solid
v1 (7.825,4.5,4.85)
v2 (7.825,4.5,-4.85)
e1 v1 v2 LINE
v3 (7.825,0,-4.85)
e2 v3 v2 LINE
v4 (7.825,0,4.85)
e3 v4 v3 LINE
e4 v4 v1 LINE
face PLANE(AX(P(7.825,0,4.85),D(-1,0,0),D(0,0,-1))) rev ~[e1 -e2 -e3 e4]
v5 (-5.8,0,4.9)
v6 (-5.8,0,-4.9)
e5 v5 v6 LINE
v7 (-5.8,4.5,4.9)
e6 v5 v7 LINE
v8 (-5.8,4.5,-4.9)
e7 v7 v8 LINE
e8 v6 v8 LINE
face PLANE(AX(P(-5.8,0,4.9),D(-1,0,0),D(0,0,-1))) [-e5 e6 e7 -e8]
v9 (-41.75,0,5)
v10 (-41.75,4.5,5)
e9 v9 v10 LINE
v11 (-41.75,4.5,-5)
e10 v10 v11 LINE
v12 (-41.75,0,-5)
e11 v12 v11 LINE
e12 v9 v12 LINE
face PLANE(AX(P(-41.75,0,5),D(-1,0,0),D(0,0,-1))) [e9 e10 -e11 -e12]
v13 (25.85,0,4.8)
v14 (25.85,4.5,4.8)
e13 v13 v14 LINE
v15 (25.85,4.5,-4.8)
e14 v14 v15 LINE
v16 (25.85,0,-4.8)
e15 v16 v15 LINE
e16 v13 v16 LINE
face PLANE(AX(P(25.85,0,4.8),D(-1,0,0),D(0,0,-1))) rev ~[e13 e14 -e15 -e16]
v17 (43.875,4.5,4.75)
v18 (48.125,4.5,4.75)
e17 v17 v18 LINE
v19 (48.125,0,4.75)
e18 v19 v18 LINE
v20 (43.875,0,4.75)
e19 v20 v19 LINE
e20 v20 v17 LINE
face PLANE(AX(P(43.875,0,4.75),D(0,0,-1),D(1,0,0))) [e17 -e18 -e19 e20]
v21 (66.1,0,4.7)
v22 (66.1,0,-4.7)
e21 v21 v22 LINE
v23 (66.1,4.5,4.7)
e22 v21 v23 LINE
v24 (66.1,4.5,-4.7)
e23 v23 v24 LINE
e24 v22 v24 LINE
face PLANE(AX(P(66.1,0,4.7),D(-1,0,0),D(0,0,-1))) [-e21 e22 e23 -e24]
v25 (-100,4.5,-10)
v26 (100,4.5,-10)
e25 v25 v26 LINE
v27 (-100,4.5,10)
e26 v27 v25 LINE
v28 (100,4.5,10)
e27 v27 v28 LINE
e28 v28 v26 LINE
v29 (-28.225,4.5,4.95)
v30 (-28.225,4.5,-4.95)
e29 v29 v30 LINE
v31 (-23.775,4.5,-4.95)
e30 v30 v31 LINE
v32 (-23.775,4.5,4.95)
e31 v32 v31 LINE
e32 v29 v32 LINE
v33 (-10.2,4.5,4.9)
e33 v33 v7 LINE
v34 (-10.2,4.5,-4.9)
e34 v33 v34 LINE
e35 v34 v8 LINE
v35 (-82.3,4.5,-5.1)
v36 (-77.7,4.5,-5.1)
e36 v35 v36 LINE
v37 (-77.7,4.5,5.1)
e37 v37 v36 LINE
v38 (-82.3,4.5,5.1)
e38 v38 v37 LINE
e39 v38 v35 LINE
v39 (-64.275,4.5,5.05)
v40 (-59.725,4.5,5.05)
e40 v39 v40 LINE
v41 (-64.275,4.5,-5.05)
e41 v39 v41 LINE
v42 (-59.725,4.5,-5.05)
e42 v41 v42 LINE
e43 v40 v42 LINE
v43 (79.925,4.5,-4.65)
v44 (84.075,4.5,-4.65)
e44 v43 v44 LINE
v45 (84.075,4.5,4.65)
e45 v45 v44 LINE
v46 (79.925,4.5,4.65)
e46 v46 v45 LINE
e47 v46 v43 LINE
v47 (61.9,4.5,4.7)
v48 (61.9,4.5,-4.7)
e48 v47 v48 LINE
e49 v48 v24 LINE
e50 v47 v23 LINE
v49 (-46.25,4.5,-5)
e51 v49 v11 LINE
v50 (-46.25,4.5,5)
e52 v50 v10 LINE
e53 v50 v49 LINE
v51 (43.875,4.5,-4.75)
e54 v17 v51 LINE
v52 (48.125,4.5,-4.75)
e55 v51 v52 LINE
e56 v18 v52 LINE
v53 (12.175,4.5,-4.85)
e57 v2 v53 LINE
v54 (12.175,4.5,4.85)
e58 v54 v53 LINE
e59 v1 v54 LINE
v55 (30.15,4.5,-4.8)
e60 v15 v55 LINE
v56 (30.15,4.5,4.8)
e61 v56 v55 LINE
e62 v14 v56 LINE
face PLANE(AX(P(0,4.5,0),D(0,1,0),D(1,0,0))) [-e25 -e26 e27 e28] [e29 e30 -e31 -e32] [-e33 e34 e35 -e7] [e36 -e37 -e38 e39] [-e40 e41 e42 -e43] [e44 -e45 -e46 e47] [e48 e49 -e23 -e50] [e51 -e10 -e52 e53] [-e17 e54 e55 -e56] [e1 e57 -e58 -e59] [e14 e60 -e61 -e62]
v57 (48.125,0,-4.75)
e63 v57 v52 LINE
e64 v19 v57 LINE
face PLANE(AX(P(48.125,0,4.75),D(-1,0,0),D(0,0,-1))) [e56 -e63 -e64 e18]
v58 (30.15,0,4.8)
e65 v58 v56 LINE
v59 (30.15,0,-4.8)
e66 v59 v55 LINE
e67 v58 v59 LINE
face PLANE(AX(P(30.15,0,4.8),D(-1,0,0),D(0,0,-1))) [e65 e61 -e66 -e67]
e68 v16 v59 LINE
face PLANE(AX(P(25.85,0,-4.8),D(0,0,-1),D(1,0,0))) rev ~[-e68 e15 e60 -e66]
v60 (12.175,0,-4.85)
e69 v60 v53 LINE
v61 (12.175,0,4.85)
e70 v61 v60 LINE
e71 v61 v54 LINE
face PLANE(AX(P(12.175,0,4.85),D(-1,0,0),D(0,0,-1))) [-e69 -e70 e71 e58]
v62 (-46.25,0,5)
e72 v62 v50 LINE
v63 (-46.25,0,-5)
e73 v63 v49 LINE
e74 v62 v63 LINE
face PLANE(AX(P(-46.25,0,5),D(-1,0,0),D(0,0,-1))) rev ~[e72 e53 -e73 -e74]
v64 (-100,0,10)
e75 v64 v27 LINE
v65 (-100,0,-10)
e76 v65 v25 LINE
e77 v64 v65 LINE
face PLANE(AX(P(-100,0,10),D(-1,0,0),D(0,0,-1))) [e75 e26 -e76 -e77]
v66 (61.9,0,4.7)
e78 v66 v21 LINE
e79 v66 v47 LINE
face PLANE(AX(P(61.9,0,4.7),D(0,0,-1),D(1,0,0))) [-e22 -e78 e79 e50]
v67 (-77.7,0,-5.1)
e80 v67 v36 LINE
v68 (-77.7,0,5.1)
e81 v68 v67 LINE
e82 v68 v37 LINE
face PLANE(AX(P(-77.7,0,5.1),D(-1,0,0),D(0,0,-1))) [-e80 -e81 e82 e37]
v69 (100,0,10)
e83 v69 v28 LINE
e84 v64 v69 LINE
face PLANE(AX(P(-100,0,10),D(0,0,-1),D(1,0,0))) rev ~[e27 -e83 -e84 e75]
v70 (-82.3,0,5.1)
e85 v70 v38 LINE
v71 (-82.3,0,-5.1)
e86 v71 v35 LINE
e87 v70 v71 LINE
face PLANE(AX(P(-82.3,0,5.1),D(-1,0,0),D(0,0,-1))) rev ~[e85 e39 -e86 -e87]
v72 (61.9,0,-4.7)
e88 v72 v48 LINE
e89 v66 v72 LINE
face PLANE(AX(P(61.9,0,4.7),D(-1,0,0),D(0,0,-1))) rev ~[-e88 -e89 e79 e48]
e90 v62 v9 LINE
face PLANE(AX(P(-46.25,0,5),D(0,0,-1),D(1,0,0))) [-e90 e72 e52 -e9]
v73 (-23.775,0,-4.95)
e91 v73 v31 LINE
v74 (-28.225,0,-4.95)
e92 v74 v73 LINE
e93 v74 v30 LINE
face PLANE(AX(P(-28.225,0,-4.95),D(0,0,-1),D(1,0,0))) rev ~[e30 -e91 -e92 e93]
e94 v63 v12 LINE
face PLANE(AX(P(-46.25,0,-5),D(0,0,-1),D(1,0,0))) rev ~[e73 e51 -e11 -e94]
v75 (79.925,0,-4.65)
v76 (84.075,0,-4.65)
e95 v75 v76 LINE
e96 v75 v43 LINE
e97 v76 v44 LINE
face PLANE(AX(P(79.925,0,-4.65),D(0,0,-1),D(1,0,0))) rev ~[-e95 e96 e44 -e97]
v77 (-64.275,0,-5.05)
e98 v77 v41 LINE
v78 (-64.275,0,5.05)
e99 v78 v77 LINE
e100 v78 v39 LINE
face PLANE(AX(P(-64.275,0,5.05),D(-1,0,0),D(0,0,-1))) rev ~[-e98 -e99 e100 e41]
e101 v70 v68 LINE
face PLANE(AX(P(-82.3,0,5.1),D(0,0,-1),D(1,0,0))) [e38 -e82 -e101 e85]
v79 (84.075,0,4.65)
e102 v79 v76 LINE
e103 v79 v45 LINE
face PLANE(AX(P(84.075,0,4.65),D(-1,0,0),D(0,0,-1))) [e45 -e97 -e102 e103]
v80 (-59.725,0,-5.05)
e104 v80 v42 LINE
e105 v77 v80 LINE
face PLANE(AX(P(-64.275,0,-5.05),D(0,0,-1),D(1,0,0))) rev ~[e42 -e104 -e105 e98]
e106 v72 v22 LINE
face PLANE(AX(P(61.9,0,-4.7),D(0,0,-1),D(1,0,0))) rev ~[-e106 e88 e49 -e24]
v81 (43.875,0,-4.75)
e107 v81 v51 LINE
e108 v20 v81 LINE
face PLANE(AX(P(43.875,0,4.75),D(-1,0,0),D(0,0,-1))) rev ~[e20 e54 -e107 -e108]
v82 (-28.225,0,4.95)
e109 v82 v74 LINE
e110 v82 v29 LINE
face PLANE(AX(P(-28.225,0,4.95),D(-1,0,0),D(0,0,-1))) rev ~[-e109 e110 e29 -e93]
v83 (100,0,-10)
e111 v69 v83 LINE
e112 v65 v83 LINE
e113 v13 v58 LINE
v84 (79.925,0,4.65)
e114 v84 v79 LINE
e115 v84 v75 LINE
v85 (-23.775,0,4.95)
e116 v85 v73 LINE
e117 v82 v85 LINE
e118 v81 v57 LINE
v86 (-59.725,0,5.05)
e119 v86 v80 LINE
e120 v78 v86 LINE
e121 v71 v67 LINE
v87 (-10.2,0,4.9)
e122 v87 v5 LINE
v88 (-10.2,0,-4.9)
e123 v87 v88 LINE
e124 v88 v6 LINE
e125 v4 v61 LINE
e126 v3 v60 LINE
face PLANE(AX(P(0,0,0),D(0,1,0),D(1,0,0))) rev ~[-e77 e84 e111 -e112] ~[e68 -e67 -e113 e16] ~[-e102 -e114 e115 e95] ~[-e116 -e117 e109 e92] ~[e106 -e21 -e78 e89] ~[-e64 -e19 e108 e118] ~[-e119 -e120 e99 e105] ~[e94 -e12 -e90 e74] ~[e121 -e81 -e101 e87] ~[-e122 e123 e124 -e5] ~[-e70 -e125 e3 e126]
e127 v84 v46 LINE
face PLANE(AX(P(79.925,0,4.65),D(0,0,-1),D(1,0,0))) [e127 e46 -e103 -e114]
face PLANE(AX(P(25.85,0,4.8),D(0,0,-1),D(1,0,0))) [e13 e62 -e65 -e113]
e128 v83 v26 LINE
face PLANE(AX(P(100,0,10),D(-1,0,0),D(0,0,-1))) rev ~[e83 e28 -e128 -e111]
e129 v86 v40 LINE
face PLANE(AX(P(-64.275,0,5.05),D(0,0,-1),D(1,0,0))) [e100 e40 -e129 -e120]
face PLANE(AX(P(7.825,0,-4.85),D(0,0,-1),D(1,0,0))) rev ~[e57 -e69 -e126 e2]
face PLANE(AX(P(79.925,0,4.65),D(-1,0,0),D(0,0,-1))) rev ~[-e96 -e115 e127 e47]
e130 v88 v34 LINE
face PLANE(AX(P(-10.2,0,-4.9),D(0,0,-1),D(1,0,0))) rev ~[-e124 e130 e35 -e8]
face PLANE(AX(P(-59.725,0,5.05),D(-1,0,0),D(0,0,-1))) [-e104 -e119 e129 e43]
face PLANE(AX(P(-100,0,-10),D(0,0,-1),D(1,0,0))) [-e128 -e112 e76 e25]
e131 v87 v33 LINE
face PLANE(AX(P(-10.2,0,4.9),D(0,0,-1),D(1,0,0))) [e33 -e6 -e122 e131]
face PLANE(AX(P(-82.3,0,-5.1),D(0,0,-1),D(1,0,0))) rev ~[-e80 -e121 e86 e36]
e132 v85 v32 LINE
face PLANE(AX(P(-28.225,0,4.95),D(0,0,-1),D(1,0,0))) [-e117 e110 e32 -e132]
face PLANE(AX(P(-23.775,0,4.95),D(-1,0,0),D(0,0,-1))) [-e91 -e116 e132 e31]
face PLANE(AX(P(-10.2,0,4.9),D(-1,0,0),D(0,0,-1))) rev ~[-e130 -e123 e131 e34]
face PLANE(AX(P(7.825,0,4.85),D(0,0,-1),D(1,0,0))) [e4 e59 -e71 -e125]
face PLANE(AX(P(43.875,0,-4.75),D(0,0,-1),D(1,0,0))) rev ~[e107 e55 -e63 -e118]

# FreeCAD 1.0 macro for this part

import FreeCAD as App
import Part
import Sketcher

V = App.Vector
Q = App.Units.Quantity

doc = App.newDocument("Part")
body = doc.addObject("PartDesign::Body", "Body")

sketch1 = body.newObject("Sketcher::SketchObject", "Sketch")
sketch1.AttachmentSupport = (doc.getObject("XZ_Plane"), [""])
sketch1.MapMode = "FlatFace"
sketch1.addGeometry(Part.LineSegment(V(-100, -10, 0), V(-100, 10, 0)), False)
sketch1.addGeometry(Part.LineSegment(V(-100, 10, 0), V(100, 10, 0)), False)
sketch1.addGeometry(Part.LineSegment(V(100, 10, 0), V(100, -10, 0)), False)
sketch1.addGeometry(Part.LineSegment(V(100, -10, 0), V(-100, -10, 0)), False)
sketch1.addGeometry(Part.LineSegment(V(-77.7, 5.1, 0), V(-82.3, 5.1, 0)), False)
sketch1.addGeometry(Part.LineSegment(V(-82.3, 5.1, 0), V(-82.3, -5.1, 0)), False)
sketch1.addGeometry(Part.LineSegment(V(-82.3, -5.1, 0), V(-77.7, -5.1, 0)), False)
sketch1.addGeometry(Part.LineSegment(V(-77.7, -5.1, 0), V(-77.7, 5.1, 0)), False)
sketch1.addGeometry(Part.LineSegment(V(-59.7, 5, 0), V(-64.3, 5, 0)), False)
sketch1.addGeometry(Part.LineSegment(V(-64.3, 5, 0), V(-64.3, -5, 0)), False)
sketch1.addGeometry(Part.LineSegment(V(-64.3, -5, 0), V(-59.7, -5, 0)), False)
sketch1.addGeometry(Part.LineSegment(V(-59.7, -5, 0), V(-59.7, 5, 0)), False)
sketch1.addGeometry(Part.LineSegment(V(-41.8, 5, 0), V(-46.2, 5, 0)), False)
sketch1.addGeometry(Part.LineSegment(V(-46.2, 5, 0), V(-46.2, -5, 0)), False)
sketch1.addGeometry(Part.LineSegment(V(-46.2, -5, 0), V(-41.8, -5, 0)), False)
sketch1.addGeometry(Part.LineSegment(V(-41.8, -5, 0), V(-41.8, 5, 0)), False)
sketch1.addGeometry(Part.LineSegment(V(-23.8, 5, 0), V(-28.2, 5, 0)), False)
sketch1.addGeometry(Part.LineSegment(V(-28.2, 5, 0), V(-28.2, -5, 0)), False)
sketch1.addGeometry(Part.LineSegment(V(-28.2, -5, 0), V(-23.8, -5, 0)), False)
sketch1.addGeometry(Part.LineSegment(V(-23.8, -5, 0), V(-23.8, 5, 0)), False)
sketch1.addGeometry(Part.LineSegment(V(-5.8, 4.9, 0), V(-10.2, 4.9, 0)), False)
sketch1.addGeometry(Part.LineSegment(V(-10.2, 4.9, 0), V(-10.2, -4.9, 0)), False)
sketch1.addGeometry(Part.LineSegment(V(-10.2, -4.9, 0), V(-5.8, -4.9, 0)), False)
sketch1.addGeometry(Part.LineSegment(V(-5.8, -4.9, 0), V(-5.8, 4.9, 0)), False)
sketch1.addGeometry(Part.LineSegment(V(12.2, 4.8, 0), V(7.8, 4.8, 0)), False)
sketch1.addGeometry(Part.LineSegment(V(7.8, 4.8, 0), V(7.8, -4.8, 0)), False)
sketch1.addGeometry(Part.LineSegment(V(7.8, -4.8, 0), V(12.2, -4.8, 0)), False)
sketch1.addGeometry(Part.LineSegment(V(12.2, -4.8, 0), V(12.2, 4.8, 0)), False)
sketch1.addGeometry(Part.LineSegment(V(30.1, 4.8, 0), V(25.9, 4.8, 0)), False)
sketch1.addGeometry(Part.LineSegment(V(25.9, 4.8, 0), V(25.9, -4.8, 0)), False)
sketch1.addGeometry(Part.LineSegment(V(25.9, -4.8, 0), V(30.1, -4.8, 0)), False)
sketch1.addGeometry(Part.LineSegment(V(30.1, -4.8, 0), V(30.1, 4.8, 0)), False)
sketch1.addGeometry(Part.LineSegment(V(48.1, 4.8, 0), V(43.9, 4.8, 0)), False)
sketch1.addGeometry(Part.LineSegment(V(43.9, 4.8, 0), V(43.9, -4.8, 0)), False)
sketch1.addGeometry(Part.LineSegment(V(43.9, -4.8, 0), V(48.1, -4.8, 0)), False)
sketch1.addGeometry(Part.LineSegment(V(48.1, -4.8, 0), V(48.1, 4.8, 0)), False)
sketch1.addGeometry(Part.LineSegment(V(66.1, 4.7, 0), V(61.9, 4.7, 0)), False)
sketch1.addGeometry(Part.LineSegment(V(61.9, 4.7, 0), V(61.9, -4.7, 0)), False)
sketch1.addGeometry(Part.LineSegment(V(61.9, -4.7, 0), V(66.1, -4.7, 0)), False)
sketch1.addGeometry(Part.LineSegment(V(66.1, -4.7, 0), V(66.1, 4.7, 0)), False)
sketch1.addGeometry(Part.LineSegment(V(84.1, 4.7, 0), V(79.9, 4.7, 0)), False)
sketch1.addGeometry(Part.LineSegment(V(79.9, 4.7, 0), V(79.9, -4.7, 0)), False)
sketch1.addGeometry(Part.LineSegment(V(79.9, -4.7, 0), V(84.1, -4.7, 0)), False)
sketch1.addGeometry(Part.LineSegment(V(84.1, -4.7, 0), V(84.1, 4.7, 0)), False)
sketch1.addConstraint(Sketcher.Constraint("Coincident", 0, 2, 1, 1))
sketch1.addConstraint(Sketcher.Constraint("Coincident", 1, 2, 2, 1))
sketch1.addConstraint(Sketcher.Constraint("Coincident", 2, 2, 3, 1))
sketch1.addConstraint(Sketcher.Constraint("Coincident", 3, 2, 0, 1))
sketch1.addConstraint(Sketcher.Constraint("Coincident", 4, 2, 5, 1))
sketch1.addConstraint(Sketcher.Constraint("Coincident", 5, 2, 6, 1))
sketch1.addConstraint(Sketcher.Constraint("Coincident", 6, 2, 7, 1))
sketch1.addConstraint(Sketcher.Constraint("Coincident", 7, 2, 4, 1))
sketch1.addConstraint(Sketcher.Constraint("Coincident", 8, 2, 9, 1))
sketch1.addConstraint(Sketcher.Constraint("Coincident", 9, 2, 10, 1))
sketch1.addConstraint(Sketcher.Constraint("Coincident", 10, 2, 11, 1))
sketch1.addConstraint(Sketcher.Constraint("Coincident", 11, 2, 8, 1))
sketch1.addConstraint(Sketcher.Constraint("Coincident", 12, 2, 13, 1))
sketch1.addConstraint(Sketcher.Constraint("Coincident", 13, 2, 14, 1))
sketch1.addConstraint(Sketcher.Constraint("Coincident", 14, 2, 15, 1))
sketch1.addConstraint(Sketcher.Constraint("Coincident", 15, 2, 12, 1))
sketch1.addConstraint(Sketcher.Constraint("Coincident", 16, 2, 17, 1))
sketch1.addConstraint(Sketcher.Constraint("Coincident", 17, 2, 18, 1))
sketch1.addConstraint(Sketcher.Constraint("Coincident", 18, 2, 19, 1))
sketch1.addConstraint(Sketcher.Constraint("Coincident", 19, 2, 16, 1))
sketch1.addConstraint(Sketcher.Constraint("Coincident", 20, 2, 21, 1))
sketch1.addConstraint(Sketcher.Constraint("Coincident", 21, 2, 22, 1))
sketch1.addConstraint(Sketcher.Constraint("Coincident", 22, 2, 23, 1))
sketch1.addConstraint(Sketcher.Constraint("Coincident", 23, 2, 20, 1))
sketch1.addConstraint(Sketcher.Constraint("Coincident", 24, 2, 25, 1))
sketch1.addConstraint(Sketcher.Constraint("Coincident", 25, 2, 26, 1))
sketch1.addConstraint(Sketcher.Constraint("Coincident", 26, 2, 27, 1))
sketch1.addConstraint(Sketcher.Constraint("Coincident", 27, 2, 24, 1))
sketch1.addConstraint(Sketcher.Constraint("Coincident", 28, 2, 29, 1))
sketch1.addConstraint(Sketcher.Constraint("Coincident", 29, 2, 30, 1))
sketch1.addConstraint(Sketcher.Constraint("Coincident", 30, 2, 31, 1))
sketch1.addConstraint(Sketcher.Constraint("Coincident", 31, 2, 28, 1))
sketch1.addConstraint(Sketcher.Constraint("Coincident", 32, 2, 33, 1))
sketch1.addConstraint(Sketcher.Constraint("Coincident", 33, 2, 34, 1))
sketch1.addConstraint(Sketcher.Constraint("Coincident", 34, 2, 35, 1))
sketch1.addConstraint(Sketcher.Constraint("Coincident", 35, 2, 32, 1))
sketch1.addConstraint(Sketcher.Constraint("Coincident", 36, 2, 37, 1))
sketch1.addConstraint(Sketcher.Constraint("Coincident", 37, 2, 38, 1))
sketch1.addConstraint(Sketcher.Constraint("Coincident", 38, 2, 39, 1))
sketch1.addConstraint(Sketcher.Constraint("Coincident", 39, 2, 36, 1))
sketch1.addConstraint(Sketcher.Constraint("Coincident", 40, 2, 41, 1))
sketch1.addConstraint(Sketcher.Constraint("Coincident", 41, 2, 42, 1))
sketch1.addConstraint(Sketcher.Constraint("Coincident", 42, 2, 43, 1))
sketch1.addConstraint(Sketcher.Constraint("Coincident", 43, 2, 40, 1))
sketch1.addConstraint(Sketcher.Constraint("Vertical", 0))
sketch1.addConstraint(Sketcher.Constraint("Horizontal", 1))
sketch1.addConstraint(Sketcher.Constraint("Vertical", 2))
sketch1.addConstraint(Sketcher.Constraint("Horizontal", 3))
sketch1.addConstraint(Sketcher.Constraint("Horizontal", 4))
sketch1.addConstraint(Sketcher.Constraint("Vertical", 5))
sketch1.addConstraint(Sketcher.Constraint("Horizontal", 6))
sketch1.addConstraint(Sketcher.Constraint("Vertical", 7))
sketch1.addConstraint(Sketcher.Constraint("Horizontal", 8))
sketch1.addConstraint(Sketcher.Constraint("Vertical", 9))
sketch1.addConstraint(Sketcher.Constraint("Horizontal", 10))
sketch1.addConstraint(Sketcher.Constraint("Vertical", 11))
sketch1.addConstraint(Sketcher.Constraint("Horizontal", 12))
sketch1.addConstraint(Sketcher.Constraint("Vertical", 13))
sketch1.addConstraint(Sketcher.Constraint("Horizontal", 14))
sketch1.addConstraint(Sketcher.Constraint("Vertical", 15))
sketch1.addConstraint(Sketcher.Constraint("Horizontal", 16))
sketch1.addConstraint(Sketcher.Constraint("Vertical", 17))
sketch1.addConstraint(Sketcher.Constraint("Horizontal", 18))
sketch1.addConstraint(Sketcher.Constraint("Vertical", 19))
sketch1.addConstraint(Sketcher.Constraint("Horizontal", 20))
sketch1.addConstraint(Sketcher.Constraint("Vertical", 21))
sketch1.addConstraint(Sketcher.Constraint("Horizontal", 22))
sketch1.addConstraint(Sketcher.Constraint("Vertical", 23))
sketch1.addConstraint(Sketcher.Constraint("Horizontal", 24))
sketch1.addConstraint(Sketcher.Constraint("Vertical", 25))
sketch1.addConstraint(Sketcher.Constraint("Horizontal", 26))
sketch1.addConstraint(Sketcher.Constraint("Vertical", 27))
sketch1.addConstraint(Sketcher.Constraint("Horizontal", 28))
sketch1.addConstraint(Sketcher.Constraint("Vertical", 29))
sketch1.addConstraint(Sketcher.Constraint("Horizontal", 30))
sketch1.addConstraint(Sketcher.Constraint("Vertical", 31))
sketch1.addConstraint(Sketcher.Constraint("Horizontal", 32))
sketch1.addConstraint(Sketcher.Constraint("Vertical", 33))
sketch1.addConstraint(Sketcher.Constraint("Horizontal", 34))
sketch1.addConstraint(Sketcher.Constraint("Vertical", 35))
sketch1.addConstraint(Sketcher.Constraint("Horizontal", 36))
sketch1.addConstraint(Sketcher.Constraint("Vertical", 37))
sketch1.addConstraint(Sketcher.Constraint("Horizontal", 38))
sketch1.addConstraint(Sketcher.Constraint("Vertical", 39))
sketch1.addConstraint(Sketcher.Constraint("Horizontal", 40))
sketch1.addConstraint(Sketcher.Constraint("Vertical", 41))
sketch1.addConstraint(Sketcher.Constraint("Horizontal", 42))
sketch1.addConstraint(Sketcher.Constraint("Vertical", 43))
sketch1.addConstraint(Sketcher.Constraint("Symmetric", 0, 2, 2, 2, -1, 1))
sketch1.addConstraint(Sketcher.Constraint("DistanceX", 1, 1, 1, 2, Q("200 mm")))
sketch1.addConstraint(Sketcher.Constraint("DistanceY", 0, 1, 0, 2, Q("20 mm")))
sketch1.addConstraint(Sketcher.Constraint("DistanceY", 13, 2, 13, 1, Q("10 mm")))
sketch1.addConstraint(Sketcher.Constraint("DistanceX", 4, 2, 4, 1, Q("4.6 mm")))
sketch1.addConstraint(Sketcher.Constraint("DistanceX", 12, 2, 12, 1, Q("4.5 mm")))
sketch1.addConstraint(Sketcher.Constraint("DistanceX", 20, 2, 20, 1, Q("4.4 mm")))
sketch1.addConstraint(Sketcher.Constraint("DistanceX", 28, 2, 28, 1, Q("4.3 mm")))
sketch1.addConstraint(Sketcher.Constraint("DistanceX", 36, 2, 36, 1, Q("4.2 mm")))
sketch1.addConstraint(Sketcher.Constraint("DistanceY", 5, 2, 5, 1, Q("10.2 mm")))
sketch1.addConstraint(Sketcher.Constraint("DistanceY", 9, 2, 9, 1, Q("10.1 mm")))
sketch1.addConstraint(Sketcher.Constraint("DistanceY", 17, 2, 17, 1, Q("9.9 mm")))
sketch1.addConstraint(Sketcher.Constraint("DistanceY", 21, 2, 21, 1, Q("9.8 mm")))
sketch1.addConstraint(Sketcher.Constraint("DistanceY", 25, 2, 25, 1, Q("9.7 mm")))
sketch1.addConstraint(Sketcher.Constraint("DistanceY", 29, 2, 29, 1, Q("9.6 mm")))
sketch1.addConstraint(Sketcher.Constraint("DistanceY", 33, 2, 33, 1, Q("9.5 mm")))
sketch1.addConstraint(Sketcher.Constraint("DistanceY", 37, 2, 37, 1, Q("9.4 mm")))
sketch1.addConstraint(Sketcher.Constraint("DistanceY", 41, 2, 41, 1, Q("9.3 mm")))
sketch1.addConstraint(Sketcher.Constraint("DistanceY", -1, 1, 12, 2, Q("5 mm")))
sketch1.addConstraint(Sketcher.Constraint("DistanceX", 8, 2, 8, 1, Q("4.55 mm")))
sketch1.addConstraint(Sketcher.Constraint("DistanceX", 16, 2, 16, 1, Q("4.45 mm")))
sketch1.addConstraint(Sketcher.Constraint("DistanceX", 24, 2, 24, 1, Q("4.35 mm")))
sketch1.addConstraint(Sketcher.Constraint("DistanceX", 32, 2, 32, 1, Q("4.25 mm")))
sketch1.addConstraint(Sketcher.Constraint("DistanceX", 40, 2, 40, 1, Q("4.15 mm")))
sketch1.addConstraint(Sketcher.Constraint("DistanceX", 4, 2, -1, 1, Q("82.3 mm")))
sketch1.addConstraint(Sketcher.Constraint("DistanceY", -1, 1, 4, 2, Q("5.1 mm")))
sketch1.addConstraint(Sketcher.Constraint("DistanceX", 20, 2, -1, 1, Q("10.2 mm")))
sketch1.addConstraint(Sketcher.Constraint("DistanceY", -1, 1, 20, 2, Q("4.9 mm")))
sketch1.addConstraint(Sketcher.Constraint("DistanceY", -1, 1, 28, 2, Q("4.8 mm")))
sketch1.addConstraint(Sketcher.Constraint("DistanceX", -1, 1, 36, 2, Q("61.9 mm")))
sketch1.addConstraint(Sketcher.Constraint("DistanceY", -1, 1, 36, 2, Q("4.7 mm")))
sketch1.addConstraint(Sketcher.Constraint("DistanceX", 11, 2, 16, 2, Q("31.5 mm")))
sketch1.addConstraint(Sketcher.Constraint("DistanceY", 16, 2, 11, 2, Q("0.1 mm")))
sketch1.addConstraint(Sketcher.Constraint("DistanceX", 19, 2, 24, 2, Q("31.6 mm")))
sketch1.addConstraint(Sketcher.Constraint("DistanceY", 24, 2, 19, 2, Q("0.1 mm")))
sketch1.addConstraint(Sketcher.Constraint("DistanceX", 27, 2, 32, 2, Q("31.7 mm")))
sketch1.addConstraint(Sketcher.Constraint("DistanceY", 32, 2, 27, 2, Q("0.1 mm")))
sketch1.addConstraint(Sketcher.Constraint("DistanceY", -1, 1, 8, 2, Q("5.05 mm")))
sketch1.addConstraint(Sketcher.Constraint("DistanceX", 12, 2, -1, 1, Q("46.25 mm")))
sketch1.addConstraint(Sketcher.Constraint("DistanceX", -1, 1, 28, 2, Q("25.85 mm")))
sketch1.addConstraint(Sketcher.Constraint("DistanceY", -1, 1, 40, 2, Q("4.65 mm")))
sketch1.addConstraint(Sketcher.Constraint("DistanceX", 8, 2, -1, 1, Q("64.275 mm")))
sketch1.addConstraint(Sketcher.Constraint("DistanceX", -1, 1, 40, 2, Q("79.925 mm")))
pad1 = body.newObject("PartDesign::Pad", "Pad")
pad1.Profile = sketch1
pad1.Length = 4.5
pad1.Reversed = True

doc.recompute()
